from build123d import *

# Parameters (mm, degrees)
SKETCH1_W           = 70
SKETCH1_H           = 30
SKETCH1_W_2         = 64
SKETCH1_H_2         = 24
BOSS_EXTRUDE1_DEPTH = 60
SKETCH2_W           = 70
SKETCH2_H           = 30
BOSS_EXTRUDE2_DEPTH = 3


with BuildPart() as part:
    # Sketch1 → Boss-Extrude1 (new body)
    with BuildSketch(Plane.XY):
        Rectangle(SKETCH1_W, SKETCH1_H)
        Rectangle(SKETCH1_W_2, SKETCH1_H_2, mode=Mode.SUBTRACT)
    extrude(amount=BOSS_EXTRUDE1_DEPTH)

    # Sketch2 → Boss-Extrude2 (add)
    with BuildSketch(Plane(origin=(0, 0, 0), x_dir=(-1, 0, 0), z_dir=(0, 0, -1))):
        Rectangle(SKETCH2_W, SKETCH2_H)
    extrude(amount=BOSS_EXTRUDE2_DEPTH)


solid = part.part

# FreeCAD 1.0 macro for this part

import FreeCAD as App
import Part
import Sketcher
from FreeCAD import Vector


def add_polygon(sketch, points):
    """Adds a closed chain of lines whose ends are joined by coincident constraints."""
    first, n = sketch.GeometryCount, len(points)
    for a, b in zip(points, points[1:] + points[:1]):
        sketch.addGeometry(Part.LineSegment(App.Vector(*a, 0), App.Vector(*b, 0)), False)
    for i in range(n):
        sketch.addConstraint(Sketcher.Constraint("Coincident", first + i, 2, first + (i + 1) % n, 1))

doc = App.newDocument("Part")
body = doc.addObject("PartDesign::Body", "Body")

# Sketch on XY plane
sketch1 = body.newObject("Sketcher::SketchObject", "Sketch")
sketch1.AttachmentSupport = (doc.getObject("XY_Plane"), [""])
sketch1.MapMode = "FlatFace"
add_polygon(sketch1, [(-35, 15), (-35, -15), (35, -15), (35, 15)])  # lines 0-3
add_polygon(sketch1, [(32, -12), (-32, -12), (-32, 12), (32, 12)])  # lines 4-7
sketch1.addConstraint(Sketcher.Constraint("Vertical", 0))
sketch1.addConstraint(Sketcher.Constraint("Horizontal", 1))
sketch1.addConstraint(Sketcher.Constraint("Vertical", 2))
sketch1.addConstraint(Sketcher.Constraint("Horizontal", 3))
sketch1.addConstraint(Sketcher.Constraint("Horizontal", 4))
sketch1.addConstraint(Sketcher.Constraint("Vertical", 5))
sketch1.addConstraint(Sketcher.Constraint("Horizontal", 6))
sketch1.addConstraint(Sketcher.Constraint("Vertical", 7))
sketch1.addConstraint(Sketcher.Constraint("Symmetric", 0, 2, 2, 2, -1, 1))
sketch1.addConstraint(Sketcher.Constraint("Symmetric", 4, 2, 6, 2, -1, 1))
sketch1.addConstraint(Sketcher.Constraint("DistanceX", 1, 1, 1, 2, 70.0))
sketch1.addConstraint(Sketcher.Constraint("DistanceX", 4, 2, 4, 1, 64.0))
sketch1.addConstraint(Sketcher.Constraint("DistanceY", 0, 2, 0, 1, 30.0))
sketch1.addConstraint(Sketcher.Constraint("DistanceY", 5, 1, 5, 2, 24.0))
pad1 = body.newObject("PartDesign::Pad", "Pad")
pad1.Profile = sketch1
pad1.Length = 60

# Sketch on XY plane
sketch2 = body.newObject("Sketcher::SketchObject", "Sketch001")
sketch2.AttachmentSupport = (doc.getObject("XY_Plane"), [""])
sketch2.MapMode = "FlatFace"
add_polygon(sketch2, [(35, 15), (35, -15), (-35, -15), (-35, 15)])  # lines 0-3
sketch2.addConstraint(Sketcher.Constraint("Vertical", 0))
sketch2.addConstraint(Sketcher.Constraint("Horizontal", 1))
sketch2.addConstraint(Sketcher.Constraint("Vertical", 2))
sketch2.addConstraint(Sketcher.Constraint("Horizontal", 3))
sketch2.addConstraint(Sketcher.Constraint("Symmetric", 0, 2, 2, 2, -1, 1))
sketch2.addConstraint(Sketcher.Constraint("DistanceX", 1, 2, 1, 1, 70.0))
sketch2.addConstraint(Sketcher.Constraint("DistanceY", 0, 2, 0, 1, 30.0))
pad2 = body.newObject("PartDesign::Pad", "Pad001")
pad2.Profile = sketch2
pad2.Length = 3
pad2.Reversed = True

doc.recompute()
